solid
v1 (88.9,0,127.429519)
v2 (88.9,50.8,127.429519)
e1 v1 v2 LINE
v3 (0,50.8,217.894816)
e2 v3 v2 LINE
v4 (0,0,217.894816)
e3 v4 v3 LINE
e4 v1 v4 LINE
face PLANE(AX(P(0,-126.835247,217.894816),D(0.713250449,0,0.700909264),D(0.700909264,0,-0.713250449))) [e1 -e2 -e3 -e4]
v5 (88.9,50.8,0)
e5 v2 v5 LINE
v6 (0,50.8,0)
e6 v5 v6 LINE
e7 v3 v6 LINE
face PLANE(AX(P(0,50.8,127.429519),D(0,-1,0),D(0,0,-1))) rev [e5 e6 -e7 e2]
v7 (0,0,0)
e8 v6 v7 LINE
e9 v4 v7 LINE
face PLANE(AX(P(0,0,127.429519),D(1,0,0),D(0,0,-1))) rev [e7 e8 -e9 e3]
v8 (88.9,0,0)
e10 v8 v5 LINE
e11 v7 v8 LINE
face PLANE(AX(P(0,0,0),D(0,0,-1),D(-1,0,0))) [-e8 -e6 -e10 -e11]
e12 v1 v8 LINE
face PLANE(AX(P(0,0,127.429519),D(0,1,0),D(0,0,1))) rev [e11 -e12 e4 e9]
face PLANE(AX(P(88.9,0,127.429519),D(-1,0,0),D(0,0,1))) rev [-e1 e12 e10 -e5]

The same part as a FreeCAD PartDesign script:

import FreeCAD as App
import Part
import Sketcher

V = App.Vector
Q = App.Units.Quantity

doc = App.newDocument("Part")
params = doc.addObject("Spreadsheet::Sheet", "Params")
for row, (alias, value) in enumerate([
    ("sketch1_height", "2 in"),
    ("sketch1_width", "3.5 in"),
    ("pad1_length", "127.429519 mm"),
    ("sketch2_width", "3.5 in"),
    ("pad2_length", "2 in"),
], start=1):
    params.set(f"A{row}", alias)
    params.set(f"B{row}", "=" + value)
    params.setAlias(f"B{row}", alias)

body = doc.addObject("PartDesign::Body", "Body")

# Sketch on XY plane
sketch1 = body.newObject("Sketcher::SketchObject", "Sketch")
sketch1.AttachmentSupport = (doc.getObject("XY_Plane"), [""])
sketch1.MapMode = "FlatFace"
sketch1.addGeometry([
    Part.LineSegment(V(0, 51, 0), V(0, 0, 0)),
    Part.LineSegment(V(0, 0, 0), V(89, 0, 0)),
    Part.LineSegment(V(89, 0, 0), V(89, 51, 0)),
    Part.LineSegment(V(89, 51, 0), V(0, 51, 0)),
], False)
sketch1.addConstraint([
    Sketcher.Constraint("Coincident", 0, 2, 1, 1),
    Sketcher.Constraint("Coincident", 1, 2, 2, 1),
    Sketcher.Constraint("Coincident", 2, 2, 3, 1),
    Sketcher.Constraint("Coincident", 3, 2, 0, 1),
    Sketcher.Constraint("Vertical", 0),
    Sketcher.Constraint("Horizontal", 1),
    Sketcher.Constraint("Vertical", 2),
    Sketcher.Constraint("Horizontal", 3),
    Sketcher.Constraint("Coincident", 0, 2, -1, 1),
    Sketcher.Constraint("DistanceY", 0, 2, 0, 1, Q("2 in")),
    Sketcher.Constraint("DistanceX", 1, 1, 1, 2, Q("3.5 in")),
])
sketch1.setExpression("Constraints[9]", "Params.sketch1_height")
sketch1.setExpression("Constraints[10]", "Params.sketch1_width")
pad1 = body.newObject("PartDesign::Pad", "Pad")
pad1.Profile = sketch1
pad1.setExpression("Length", "Params.pad1_length")

# Sketch on XZ plane
sketch2 = body.newObject("Sketcher::SketchObject", "Sketch001")
sketch2.AttachmentSupport = (doc.getObject("XZ_Plane"), [""])
sketch2.MapMode = "FlatFace"
sketch2.AttachmentOffset = App.Placement(V(0, 0, -2 * 25.4), App.Rotation())
sketch2.addGeometry([
    Part.LineSegment(V(0, 127, 0), V(0, 218, 0)),
    Part.LineSegment(V(0, 218, 0), V(89, 127, 0)),
    Part.LineSegment(V(89, 127, 0), V(0, 127, 0)),
], False)
sketch2.addConstraint([
    Sketcher.Constraint("Coincident", 0, 2, 1, 1),
    Sketcher.Constraint("Coincident", 1, 2, 2, 1),
    Sketcher.Constraint("Coincident", 2, 2, 0, 1),
    Sketcher.Constraint("Vertical", 0),
    Sketcher.Constraint("Horizontal", 2),
    Sketcher.Constraint("PointOnObject", 0, 2, -2),
    Sketcher.Constraint("DistanceX", 2, 2, 2, 1, Q("3.5 in")),
    Sketcher.Constraint("Angle", 1, Q("-45.5 deg")),
    Sketcher.Constraint("DistanceY", -1, 1, 1, 2, Q("127.429519 mm")),
])
sketch2.setExpression("Constraints[6]", "Params.sketch2_width")
pad2 = body.newObject("PartDesign::Pad", "Pad001")
pad2.Profile = sketch2
pad2.setExpression("Length", "Params.pad2_length")

doc.recompute()
